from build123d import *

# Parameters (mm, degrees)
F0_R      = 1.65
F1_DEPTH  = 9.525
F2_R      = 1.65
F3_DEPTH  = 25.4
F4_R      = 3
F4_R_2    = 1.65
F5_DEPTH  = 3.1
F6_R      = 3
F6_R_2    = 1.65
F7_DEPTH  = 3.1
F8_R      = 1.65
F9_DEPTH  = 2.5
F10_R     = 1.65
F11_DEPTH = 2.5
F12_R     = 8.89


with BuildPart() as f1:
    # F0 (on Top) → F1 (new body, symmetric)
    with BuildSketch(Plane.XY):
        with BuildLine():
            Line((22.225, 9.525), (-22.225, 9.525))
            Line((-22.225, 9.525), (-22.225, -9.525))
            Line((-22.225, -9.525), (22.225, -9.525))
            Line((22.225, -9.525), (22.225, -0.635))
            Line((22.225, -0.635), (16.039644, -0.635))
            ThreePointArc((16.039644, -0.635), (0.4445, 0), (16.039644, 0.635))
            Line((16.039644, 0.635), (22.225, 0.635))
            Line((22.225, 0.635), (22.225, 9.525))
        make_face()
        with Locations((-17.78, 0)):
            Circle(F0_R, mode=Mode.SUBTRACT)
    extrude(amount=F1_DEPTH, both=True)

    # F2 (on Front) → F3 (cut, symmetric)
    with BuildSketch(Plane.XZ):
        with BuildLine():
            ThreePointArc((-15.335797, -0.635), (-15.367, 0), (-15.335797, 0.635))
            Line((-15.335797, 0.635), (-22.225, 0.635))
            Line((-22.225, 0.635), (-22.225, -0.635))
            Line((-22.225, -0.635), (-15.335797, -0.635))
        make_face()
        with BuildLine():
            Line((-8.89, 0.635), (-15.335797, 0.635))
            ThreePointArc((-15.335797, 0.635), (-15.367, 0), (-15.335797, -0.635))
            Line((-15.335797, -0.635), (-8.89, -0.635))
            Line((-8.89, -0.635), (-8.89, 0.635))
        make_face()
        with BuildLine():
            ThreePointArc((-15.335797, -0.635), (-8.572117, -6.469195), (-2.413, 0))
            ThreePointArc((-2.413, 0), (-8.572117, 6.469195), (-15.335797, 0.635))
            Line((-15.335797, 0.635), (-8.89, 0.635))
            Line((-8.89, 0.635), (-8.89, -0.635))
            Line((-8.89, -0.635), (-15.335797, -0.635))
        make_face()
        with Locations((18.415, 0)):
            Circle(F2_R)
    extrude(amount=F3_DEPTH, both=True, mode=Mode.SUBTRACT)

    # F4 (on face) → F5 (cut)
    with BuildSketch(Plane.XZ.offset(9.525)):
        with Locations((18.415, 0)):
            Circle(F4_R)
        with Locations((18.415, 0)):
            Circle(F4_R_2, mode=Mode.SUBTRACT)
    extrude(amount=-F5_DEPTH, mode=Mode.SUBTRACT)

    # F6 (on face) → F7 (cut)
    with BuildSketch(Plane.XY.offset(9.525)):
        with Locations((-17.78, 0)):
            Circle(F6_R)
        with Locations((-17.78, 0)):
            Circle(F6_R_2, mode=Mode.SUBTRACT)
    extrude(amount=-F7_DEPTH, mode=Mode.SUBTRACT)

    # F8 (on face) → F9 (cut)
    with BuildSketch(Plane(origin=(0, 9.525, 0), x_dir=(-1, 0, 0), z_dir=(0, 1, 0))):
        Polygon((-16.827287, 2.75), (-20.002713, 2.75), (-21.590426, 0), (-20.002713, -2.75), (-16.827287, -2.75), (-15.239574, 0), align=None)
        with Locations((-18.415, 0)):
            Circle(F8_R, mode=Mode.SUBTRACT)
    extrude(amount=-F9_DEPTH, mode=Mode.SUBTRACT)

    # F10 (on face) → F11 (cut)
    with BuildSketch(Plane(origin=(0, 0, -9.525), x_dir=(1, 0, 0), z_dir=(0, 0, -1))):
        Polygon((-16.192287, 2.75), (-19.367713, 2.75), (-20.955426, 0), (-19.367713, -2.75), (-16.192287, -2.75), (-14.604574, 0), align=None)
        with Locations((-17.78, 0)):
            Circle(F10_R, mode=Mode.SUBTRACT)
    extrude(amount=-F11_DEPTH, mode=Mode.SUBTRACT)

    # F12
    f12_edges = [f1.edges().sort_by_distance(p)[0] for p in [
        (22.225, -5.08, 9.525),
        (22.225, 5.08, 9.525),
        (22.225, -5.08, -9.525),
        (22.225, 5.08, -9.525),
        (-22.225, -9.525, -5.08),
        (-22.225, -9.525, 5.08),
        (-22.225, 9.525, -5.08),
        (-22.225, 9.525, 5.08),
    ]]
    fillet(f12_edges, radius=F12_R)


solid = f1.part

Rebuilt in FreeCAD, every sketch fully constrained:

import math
import FreeCAD as App
import Part
import Sketcher
from FreeCAD import Vector
Q = App.Units.Quantity


def edges_at(feature, points):
    """Names of the edges that pass closest to the given points."""
    edges = feature.Shape.Edges
    near = lambda p: min(range(len(edges)), key=lambda i: edges[i].distToShape(Part.Vertex(*p))[0])
    return sorted({f"Edge{near(p) + 1}" for p in points})

doc = App.newDocument("Part")
params = doc.addObject("Spreadsheet::Sheet", "Params")
for row, (alias, value) in enumerate([
    ("sketch1_width", "1.75 in"),
    ("sketch1_height", "0.75 in"),
    ("sketch1_height2", "0.35 in"),
    ("pad1_length", "0.75 in"),
    ("sketch2_radius", "0.255 in"),
    ("sketch2_height", "0.05 in"),
    ("pocket1_length", "2 in"),
    ("pocket2_length", "3.1 mm"),
    ("pocket3_length", "3.1 mm"),
    ("pocket4_length", "2.5 mm"),
    ("pocket5_length", "2.5 mm"),
    ("fillet_radius", "0.35 in"),
], start=1):
    params.set(f"A{row}", alias)
    params.set(f"B{row}", "=" + value)
    params.setAlias(f"B{row}", alias)

body = doc.addObject("PartDesign::Body", "Body")

sketch1 = body.newObject("Sketcher::SketchObject", "Sketch")
sketch1.AttachmentSupport = (doc.getObject("XY_Plane"), [""])
sketch1.MapMode = "FlatFace"
sketch1.addGeometry(Part.LineSegment(Vector(22.2, 9.5, 0), Vector(-22.2, 9.5, 0)), False)
sketch1.addGeometry(Part.LineSegment(Vector(-22.2, 9.5, 0), Vector(-22.2, -9.5, 0)), False)
sketch1.addGeometry(Part.LineSegment(Vector(-22.2, -9.5, 0), Vector(22.2, -9.5, 0)), False)
sketch1.addGeometry(Part.LineSegment(Vector(22.2, -9.5, 0), Vector(22.2, -0.6, 0)), False)
sketch1.addGeometry(Part.LineSegment(Vector(22.2, -0.6, 0), Vector(16, -0.6, 0)), False)
sketch1.addGeometry(Part.ArcOfCircle(Part.Circle(Vector(8.3, 0, 0), Vector(0, 0, 1), 7.8), math.radians(5), math.radians(355)), False)
sketch1.addGeometry(Part.LineSegment(Vector(16, 0.6, 0), Vector(22.2, 0.6, 0)), False)
sketch1.addGeometry(Part.LineSegment(Vector(22.2, 0.6, 0), Vector(22.2, 9.5, 0)), False)
sketch1.addGeometry(Part.Circle(Vector(-17.8, 0, 0), Vector(0, 0, 1), 1.6), False)
sketch1.addConstraint(Sketcher.Constraint("Coincident", 0, 2, 1, 1))
sketch1.addConstraint(Sketcher.Constraint("Coincident", 1, 2, 2, 1))
sketch1.addConstraint(Sketcher.Constraint("Coincident", 2, 2, 3, 1))
sketch1.addConstraint(Sketcher.Constraint("Coincident", 3, 2, 4, 1))
sketch1.addConstraint(Sketcher.Constraint("Coincident", 4, 2, 5, 2))
sketch1.addConstraint(Sketcher.Constraint("Coincident", 5, 1, 6, 1))
sketch1.addConstraint(Sketcher.Constraint("Coincident", 6, 2, 7, 1))
sketch1.addConstraint(Sketcher.Constraint("Coincident", 7, 2, 0, 1))
sketch1.addConstraint(Sketcher.Constraint("Horizontal", 0))
sketch1.addConstraint(Sketcher.Constraint("Vertical", 1))
sketch1.addConstraint(Sketcher.Constraint("Horizontal", 2))
sketch1.addConstraint(Sketcher.Constraint("Vertical", 3))
sketch1.addConstraint(Sketcher.Constraint("Horizontal", 4))
sketch1.addConstraint(Sketcher.Constraint("Horizontal", 6))
sketch1.addConstraint(Sketcher.Constraint("Vertical", 7))
sketch1.addConstraint(Sketcher.Constraint("Symmetric", 0, 2, 2, 2, -1, 1))
sketch1.addConstraint(Sketcher.Constraint("Symmetric", 4, 2, 5, 1, -1))
sketch1.addConstraint(Sketcher.Constraint("PointOnObject", 8, 3, -1))
sketch1.addConstraint(Sketcher.Constraint("Vertical", 3, 2, 6, 2))
sketch1.addConstraint(Sketcher.Constraint("DistanceX", 0, 2, 0, 1, Q("1.75 in")))
sketch1.addConstraint(Sketcher.Constraint("DistanceY", 1, 2, 1, 1, Q("0.75 in")))
sketch1.addConstraint(Sketcher.Constraint("DistanceY", 3, 1, 3, 2, Q("0.35 in")))
sketch1.addConstraint(Sketcher.Constraint("DistanceX", 8, 3, -1, 1, Q("0.7 in")))
sketch1.addConstraint(Sketcher.Constraint("Radius", 5, Q("0.3075 in")))
sketch1.addConstraint(Sketcher.Constraint("DistanceX", 0, 2, 5, 3, Q("1.2 in")))
sketch1.addConstraint(Sketcher.Constraint("Diameter", 8, Q("3.3 mm")))
sketch1.setExpression("Constraints[19]", "Params.sketch1_width")
sketch1.setExpression("Constraints[20]", "Params.sketch1_height")
sketch1.setExpression("Constraints[21]", "Params.sketch1_height2")
pad1 = body.newObject("PartDesign::Pad", "Pad")
pad1.Profile = sketch1
pad1.setExpression("Length", "Params.pad1_length")
pad1.Midplane = True

sketch2 = body.newObject("Sketcher::SketchObject", "Sketch001")
sketch2.AttachmentSupport = (doc.getObject("XZ_Plane"), [""])
sketch2.MapMode = "FlatFace"
sketch2.addGeometry(Part.LineSegment(Vector(-22.2, 0.6, 0), Vector(-22.2, -0.6, 0)), False)
sketch2.addGeometry(Part.LineSegment(Vector(-22.2, -0.6, 0), Vector(-15.3, -0.6, 0)), False)
sketch2.addGeometry(Part.ArcOfCircle(Part.Circle(Vector(-8.9, 0, 0), Vector(0, 0, 1), 6.5), math.radians(-174), math.radians(0)), False)
sketch2.addGeometry(Part.ArcOfCircle(Part.Circle(Vector(-8.9, 0, 0), Vector(0, 0, 1), 6.5), math.radians(0), math.radians(174)), False)
sketch2.addGeometry(Part.LineSegment(Vector(-15.3, 0.6, 0), Vector(-22.2, 0.6, 0)), False)
sketch2.addGeometry(Part.Circle(Vector(18.4, 0, 0), Vector(0, 0, 1), 1.6), False)
sketch2.addConstraint(Sketcher.Constraint("Coincident", 0, 2, 1, 1))
sketch2.addConstraint(Sketcher.Constraint("Coincident", 1, 2, 2, 1))
sketch2.addConstraint(Sketcher.Constraint("Tangent", 2, 2, 3, 1))
sketch2.addConstraint(Sketcher.Constraint("Coincident", 3, 2, 4, 1))
sketch2.addConstraint(Sketcher.Constraint("Coincident", 4, 2, 0, 1))
sketch2.addConstraint(Sketcher.Constraint("Vertical", 0))
sketch2.addConstraint(Sketcher.Constraint("Horizontal", 1))
sketch2.addConstraint(Sketcher.Constraint("Horizontal", 4))
sketch2.addConstraint(Sketcher.Constraint("Equal", 2, 3))
sketch2.addConstraint(Sketcher.Constraint("Symmetric", 1, 2, 3, 2, -1))
sketch2.addConstraint(Sketcher.Constraint("PointOnObject", 5, 3, -1))
sketch2.addConstraint(Sketcher.Constraint("PointOnObject", 2, 2, -1))
sketch2.addConstraint(Sketcher.Constraint("Radius", 2, Q("0.255 in")))
sketch2.addConstraint(Sketcher.Constraint("DistanceY", 0, 2, 0, 1, Q("0.05 in")))
sketch2.addConstraint(Sketcher.Constraint("DistanceX", 0, 2, 5, 3, Q("1.6 in")))
sketch2.addConstraint(Sketcher.Constraint("Diameter", 5, Q("3.3 mm")))
sketch2.addConstraint(Sketcher.Constraint("DistanceX", 2, 3, -1, 1, Q("0.35 in")))
sketch2.addConstraint(Sketcher.Constraint("DistanceX", 0, 2, 2, 2, Q("0.78 in")))
sketch2.setExpression("Constraints[12]", "Params.sketch2_radius")
sketch2.setExpression("Constraints[13]", "Params.sketch2_height")
pocket1 = body.newObject("PartDesign::Pocket", "Pocket")
pocket1.Profile = sketch2
pocket1.setExpression("Length", "Params.pocket1_length")
pocket1.Midplane = True

sketch3 = body.newObject("Sketcher::SketchObject", "Sketch002")
sketch3.AttachmentSupport = (doc.getObject("XZ_Plane"), [""])
sketch3.MapMode = "FlatFace"
sketch3.AttachmentOffset = App.Placement(Vector(0, 0, 0.375 * 25.4), App.Rotation())
sketch3.addGeometry(Part.Circle(Vector(18.4, 0, 0), Vector(0, 0, 1), 3), False)
sketch3.addGeometry(Part.Circle(Vector(18.4, 0, 0), Vector(0, 0, 1), 1.6), False)
sketch3.addConstraint(Sketcher.Constraint("Coincident", 1, 3, 0, 3))
sketch3.addConstraint(Sketcher.Constraint("PointOnObject", 0, 3, -1))
sketch3.addConstraint(Sketcher.Constraint("Diameter", 0, Q("6 mm")))
sketch3.addConstraint(Sketcher.Constraint("Diameter", 1, Q("3.3 mm")))
sketch3.addConstraint(Sketcher.Constraint("DistanceX", -1, 1, 0, 3, Q("0.725 in")))
pocket2 = body.newObject("PartDesign::Pocket", "Pocket001")
pocket2.Profile = sketch3
pocket2.setExpression("Length", "Params.pocket2_length")

sketch4 = body.newObject("Sketcher::SketchObject", "Sketch003")
sketch4.AttachmentSupport = (doc.getObject("XY_Plane"), [""])
sketch4.MapMode = "FlatFace"
sketch4.AttachmentOffset = App.Placement(Vector(0, 0, 0.375 * 25.4), App.Rotation())
sketch4.addGeometry(Part.Circle(Vector(-17.8, 0, 0), Vector(0, 0, 1), 3), False)
sketch4.addGeometry(Part.Circle(Vector(-17.8, 0, 0), Vector(0, 0, 1), 1.6), False)
sketch4.addConstraint(Sketcher.Constraint("Coincident", 1, 3, 0, 3))
sketch4.addConstraint(Sketcher.Constraint("PointOnObject", 0, 3, -1))
sketch4.addConstraint(Sketcher.Constraint("DistanceX", 0, 3, -1, 1, Q("0.7 in")))
sketch4.addConstraint(Sketcher.Constraint("Diameter", 0, Q("6 mm")))
sketch4.addConstraint(Sketcher.Constraint("Diameter", 1, Q("3.3 mm")))
pocket3 = body.newObject("PartDesign::Pocket", "Pocket002")
pocket3.Profile = sketch4
pocket3.setExpression("Length", "Params.pocket3_length")

sketch5 = body.newObject("Sketcher::SketchObject", "Sketch004")
sketch5.AttachmentSupport = (doc.getObject("XZ_Plane"), [""])
sketch5.MapMode = "FlatFace"
sketch5.AttachmentOffset = App.Placement(Vector(0, 0, -0.375 * 25.4), App.Rotation())
sketch5.addGeometry(Part.LineSegment(Vector(16.8, 2.8, 0), Vector(20, 2.8, 0)), False)
sketch5.addGeometry(Part.LineSegment(Vector(20, 2.8, 0), Vector(21.6, 0, 0)), False)
sketch5.addGeometry(Part.LineSegment(Vector(21.6, 0, 0), Vector(20, -2.8, 0)), False)
sketch5.addGeometry(Part.LineSegment(Vector(20, -2.8, 0), Vector(16.8, -2.8, 0)), False)
sketch5.addGeometry(Part.LineSegment(Vector(16.8, -2.8, 0), Vector(15.2, 0, 0)), False)
sketch5.addGeometry(Part.LineSegment(Vector(15.2, 0, 0), Vector(16.8, 2.8, 0)), False)
sketch5.addGeometry(Part.Circle(Vector(18.4, 0, 0), Vector(0, 0, 1), 1.6), False)
sketch5.addConstraint(Sketcher.Constraint("Coincident", 0, 2, 1, 1))
sketch5.addConstraint(Sketcher.Constraint("Coincident", 1, 2, 2, 1))
sketch5.addConstraint(Sketcher.Constraint("Coincident", 2, 2, 3, 1))
sketch5.addConstraint(Sketcher.Constraint("Coincident", 3, 2, 4, 1))
sketch5.addConstraint(Sketcher.Constraint("Coincident", 4, 2, 5, 1))
sketch5.addConstraint(Sketcher.Constraint("Coincident", 5, 2, 0, 1))
sketch5.addConstraint(Sketcher.Constraint("Horizontal", 0))
sketch5.addConstraint(Sketcher.Constraint("Horizontal", 3))
sketch5.addConstraint(Sketcher.Constraint("Symmetric", 0, 2, 2, 2, -1))
sketch5.addConstraint(Sketcher.Constraint("PointOnObject", 6, 3, -1))
sketch5.addConstraint(Sketcher.Constraint("PointOnObject", 1, 2, -1))
sketch5.addConstraint(Sketcher.Constraint("PointOnObject", 4, 2, -1))
sketch5.addConstraint(Sketcher.Constraint("Parallel", 1, 4))
sketch5.addConstraint(Sketcher.Constraint("Parallel", 2, 5))
sketch5.addConstraint(Sketcher.Constraint("Angle", 1, Q("-60.000004 deg")))
sketch5.addConstraint(Sketcher.Constraint("Diameter", 6, Q("3.3 mm")))
sketch5.addConstraint(Sketcher.Constraint("DistanceX", -1, 1, 6, 3, Q("0.725 in")))
sketch5.addConstraint(Sketcher.Constraint("DistanceY", -1, 1, 0, 2, Q("2.75 mm")))
sketch5.addConstraint(Sketcher.Constraint("DistanceX", 0, 1, 0, 2, Q("3.175426 mm")))
sketch5.addConstraint(Sketcher.Constraint("DistanceX", -1, 1, 0, 2, Q("20.002713 mm")))
pocket4 = body.newObject("PartDesign::Pocket", "Pocket003")
pocket4.Profile = sketch5
pocket4.setExpression("Length", "Params.pocket4_length")
pocket4.Reversed = True

sketch6 = body.newObject("Sketcher::SketchObject", "Sketch005")
sketch6.AttachmentSupport = (doc.getObject("XY_Plane"), [""])
sketch6.MapMode = "FlatFace"
sketch6.AttachmentOffset = App.Placement(Vector(0, 0, -0.375 * 25.4), App.Rotation())
sketch6.addGeometry(Part.LineSegment(Vector(-16.2, -2.8, 0), Vector(-19.4, -2.8, 0)), False)
sketch6.addGeometry(Part.LineSegment(Vector(-19.4, -2.8, 0), Vector(-21, 0, 0)), False)
sketch6.addGeometry(Part.LineSegment(Vector(-21, 0, 0), Vector(-19.4, 2.8, 0)), False)
sketch6.addGeometry(Part.LineSegment(Vector(-19.4, 2.8, 0), Vector(-16.2, 2.8, 0)), False)
sketch6.addGeometry(Part.LineSegment(Vector(-16.2, 2.8, 0), Vector(-14.6, 0, 0)), False)
sketch6.addGeometry(Part.LineSegment(Vector(-14.6, 0, 0), Vector(-16.2, -2.8, 0)), False)
sketch6.addGeometry(Part.Circle(Vector(-17.8, 0, 0), Vector(0, 0, 1), 1.6), False)
sketch6.addConstraint(Sketcher.Constraint("Coincident", 0, 2, 1, 1))
sketch6.addConstraint(Sketcher.Constraint("Coincident", 1, 2, 2, 1))
sketch6.addConstraint(Sketcher.Constraint("Coincident", 2, 2, 3, 1))
sketch6.addConstraint(Sketcher.Constraint("Coincident", 3, 2, 4, 1))
sketch6.addConstraint(Sketcher.Constraint("Coincident", 4, 2, 5, 1))
sketch6.addConstraint(Sketcher.Constraint("Coincident", 5, 2, 0, 1))
sketch6.addConstraint(Sketcher.Constraint("Horizontal", 0))
sketch6.addConstraint(Sketcher.Constraint("Horizontal", 3))
sketch6.addConstraint(Sketcher.Constraint("Symmetric", 0, 2, 2, 2, -1))
sketch6.addConstraint(Sketcher.Constraint("PointOnObject", 6, 3, -1))
sketch6.addConstraint(Sketcher.Constraint("PointOnObject", 1, 2, -1))
sketch6.addConstraint(Sketcher.Constraint("PointOnObject", 4, 2, -1))
sketch6.addConstraint(Sketcher.Constraint("Parallel", 1, 4))
sketch6.addConstraint(Sketcher.Constraint("Parallel", 2, 5))
sketch6.addConstraint(Sketcher.Constraint("Angle", 1, Q("119.999996 deg")))
sketch6.addConstraint(Sketcher.Constraint("DistanceX", 6, 3, -1, 1, Q("0.7 in")))
sketch6.addConstraint(Sketcher.Constraint("Diameter", 6, Q("3.3 mm")))
sketch6.addConstraint(Sketcher.Constraint("DistanceY", 0, 2, -1, 1, Q("2.75 mm")))
sketch6.addConstraint(Sketcher.Constraint("DistanceX", 0, 2, 0, 1, Q("3.175426 mm")))
sketch6.addConstraint(Sketcher.Constraint("DistanceX", 0, 2, -1, 1, Q("19.367713 mm")))
pocket5 = body.newObject("PartDesign::Pocket", "Pocket004")
pocket5.Profile = sketch6
pocket5.setExpression("Length", "Params.pocket5_length")
pocket5.Reversed = True
doc.recompute()

fillet = body.newObject("PartDesign::Fillet", "Fillet")
fillet.Base = (pocket5, edges_at(pocket5, [
    (22.225, -5.08, 9.525),
    (22.225, 5.08, 9.525),
    (22.225, -5.08, -9.525),
    (22.225, 5.08, -9.525),
    (-22.225, -9.525, -5.08),
    (-22.225, -9.525, 5.08),
    (-22.225, 9.525, -5.08),
    (-22.225, 9.525, 5.08),
]))
fillet.setExpression("Radius", "Params.fillet_radius")

doc.recompute()
